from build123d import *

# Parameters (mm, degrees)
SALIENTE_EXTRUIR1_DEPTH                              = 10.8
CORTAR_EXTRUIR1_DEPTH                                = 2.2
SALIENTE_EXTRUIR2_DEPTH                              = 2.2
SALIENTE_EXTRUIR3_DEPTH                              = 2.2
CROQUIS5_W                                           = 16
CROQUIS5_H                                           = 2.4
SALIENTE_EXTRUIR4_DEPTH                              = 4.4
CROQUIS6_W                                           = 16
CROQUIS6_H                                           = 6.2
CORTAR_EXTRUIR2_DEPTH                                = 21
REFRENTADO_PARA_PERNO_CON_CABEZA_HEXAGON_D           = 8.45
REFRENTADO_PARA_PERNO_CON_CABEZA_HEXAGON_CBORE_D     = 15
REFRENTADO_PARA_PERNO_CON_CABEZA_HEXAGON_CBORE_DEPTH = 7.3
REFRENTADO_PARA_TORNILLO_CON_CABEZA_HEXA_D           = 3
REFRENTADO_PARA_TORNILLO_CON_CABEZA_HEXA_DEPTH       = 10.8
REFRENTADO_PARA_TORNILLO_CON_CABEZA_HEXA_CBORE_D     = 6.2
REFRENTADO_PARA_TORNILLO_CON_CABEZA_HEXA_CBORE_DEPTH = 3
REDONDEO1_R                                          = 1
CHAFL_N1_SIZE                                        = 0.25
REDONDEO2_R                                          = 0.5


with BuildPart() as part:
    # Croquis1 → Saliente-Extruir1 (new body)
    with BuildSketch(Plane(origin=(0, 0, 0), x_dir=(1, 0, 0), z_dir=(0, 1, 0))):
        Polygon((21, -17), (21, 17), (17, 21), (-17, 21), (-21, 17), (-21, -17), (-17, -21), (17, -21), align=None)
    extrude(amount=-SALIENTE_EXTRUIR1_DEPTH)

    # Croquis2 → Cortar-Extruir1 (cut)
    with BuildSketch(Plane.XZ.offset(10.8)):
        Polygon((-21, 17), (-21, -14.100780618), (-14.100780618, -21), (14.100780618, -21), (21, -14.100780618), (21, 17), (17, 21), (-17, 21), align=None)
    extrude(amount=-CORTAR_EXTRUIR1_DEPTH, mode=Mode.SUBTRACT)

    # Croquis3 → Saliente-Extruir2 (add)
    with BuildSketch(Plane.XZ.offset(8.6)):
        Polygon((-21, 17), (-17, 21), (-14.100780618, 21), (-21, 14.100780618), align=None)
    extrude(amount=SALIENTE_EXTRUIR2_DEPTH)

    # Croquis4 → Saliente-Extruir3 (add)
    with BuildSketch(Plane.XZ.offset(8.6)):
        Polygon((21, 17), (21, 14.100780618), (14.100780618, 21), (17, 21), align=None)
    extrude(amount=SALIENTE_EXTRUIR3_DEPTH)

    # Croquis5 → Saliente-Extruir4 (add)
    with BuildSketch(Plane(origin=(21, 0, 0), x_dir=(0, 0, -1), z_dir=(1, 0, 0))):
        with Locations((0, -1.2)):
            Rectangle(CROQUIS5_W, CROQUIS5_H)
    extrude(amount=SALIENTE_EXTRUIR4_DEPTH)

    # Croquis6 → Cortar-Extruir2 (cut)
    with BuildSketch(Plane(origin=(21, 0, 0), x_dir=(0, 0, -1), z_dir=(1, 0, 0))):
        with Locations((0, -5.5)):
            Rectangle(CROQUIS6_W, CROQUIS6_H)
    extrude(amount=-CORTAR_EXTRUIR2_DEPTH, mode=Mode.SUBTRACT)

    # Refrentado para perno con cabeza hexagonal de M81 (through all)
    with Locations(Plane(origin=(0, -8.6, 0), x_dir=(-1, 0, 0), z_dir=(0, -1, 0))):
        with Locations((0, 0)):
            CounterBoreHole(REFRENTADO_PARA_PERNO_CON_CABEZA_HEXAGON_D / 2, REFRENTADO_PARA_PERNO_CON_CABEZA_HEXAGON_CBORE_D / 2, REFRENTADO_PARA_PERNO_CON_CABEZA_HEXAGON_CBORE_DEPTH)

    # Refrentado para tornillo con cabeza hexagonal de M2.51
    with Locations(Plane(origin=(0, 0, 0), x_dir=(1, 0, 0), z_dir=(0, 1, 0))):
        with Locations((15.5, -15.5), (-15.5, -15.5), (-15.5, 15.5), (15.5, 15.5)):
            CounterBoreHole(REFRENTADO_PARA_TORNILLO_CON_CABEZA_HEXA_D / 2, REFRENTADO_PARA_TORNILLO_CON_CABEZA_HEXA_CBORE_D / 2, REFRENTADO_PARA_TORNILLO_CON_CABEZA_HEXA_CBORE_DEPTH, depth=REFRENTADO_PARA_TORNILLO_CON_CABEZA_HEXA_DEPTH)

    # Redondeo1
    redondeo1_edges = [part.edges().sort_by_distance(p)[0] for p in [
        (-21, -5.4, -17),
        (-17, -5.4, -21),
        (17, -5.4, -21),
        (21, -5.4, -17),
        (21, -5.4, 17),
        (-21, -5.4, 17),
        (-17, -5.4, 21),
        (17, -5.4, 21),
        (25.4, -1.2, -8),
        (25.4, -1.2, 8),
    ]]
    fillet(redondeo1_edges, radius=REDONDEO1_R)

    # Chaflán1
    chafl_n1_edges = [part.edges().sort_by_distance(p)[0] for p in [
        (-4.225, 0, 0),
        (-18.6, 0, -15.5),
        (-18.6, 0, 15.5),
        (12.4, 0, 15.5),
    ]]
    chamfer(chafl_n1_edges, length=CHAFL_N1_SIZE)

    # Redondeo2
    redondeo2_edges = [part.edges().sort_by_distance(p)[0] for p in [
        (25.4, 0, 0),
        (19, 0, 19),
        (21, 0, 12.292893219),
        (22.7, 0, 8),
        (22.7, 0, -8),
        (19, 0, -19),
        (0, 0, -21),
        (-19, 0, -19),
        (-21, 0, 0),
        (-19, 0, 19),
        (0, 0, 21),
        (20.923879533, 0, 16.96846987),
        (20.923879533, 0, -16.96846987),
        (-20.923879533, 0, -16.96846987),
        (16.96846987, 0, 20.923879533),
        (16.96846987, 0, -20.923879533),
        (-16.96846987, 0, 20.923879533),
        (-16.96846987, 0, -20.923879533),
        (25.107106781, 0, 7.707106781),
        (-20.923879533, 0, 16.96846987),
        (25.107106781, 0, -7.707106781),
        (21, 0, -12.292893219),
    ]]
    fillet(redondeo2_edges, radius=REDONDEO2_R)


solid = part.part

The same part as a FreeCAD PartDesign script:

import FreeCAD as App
import Part
import Sketcher

V = App.Vector
Q = App.Units.Quantity


def edges_at(feature, points):
    """Names of the edges that pass closest to the given points."""
    edges = feature.Shape.Edges
    near = lambda p: min(range(len(edges)), key=lambda i: edges[i].distToShape(Part.Vertex(*p))[0])
    return sorted({f"Edge{near(p) + 1}" for p in points})

doc = App.newDocument("Part")
params = doc.addObject("Spreadsheet::Sheet", "Params")
for row, (alias, value) in enumerate([
    ("sketch1_width", "34 mm"),
    ("pad1_length", "10.8 mm"),
    ("sketch2_width", "34 mm"),
    ("pocket1_length", "2.2 mm"),
    ("pad2_length", "2.2 mm"),
    ("pad3_length", "2.2 mm"),
    ("sketch5_height", "16 mm"),
    ("sketch5_width", "2.4 mm"),
    ("pad4_length", "4.4 mm"),
    ("sketch6_height", "16 mm"),
    ("sketch6_width", "6.2 mm"),
    ("pocket2_length", "21 mm"),
    ("sketch7_diameter", "8.45 mm"),
    ("hole_diameter", "8.45 mm"),
    ("hole_cbore_diameter", "15 mm"),
    ("hole_cbore_depth", "7.3 mm"),
    ("sketch8_diameter", "3 mm"),
    ("hole2_diameter", "3 mm"),
    ("hole2_depth", "10.8 mm"),
    ("hole2_cbore_diameter", "6.2 mm"),
    ("hole2_cbore_depth", "3 mm"),
    ("fillet_radius", "1 mm"),
    ("chamfer_size", "0.25 mm"),
    ("fillet2_radius", "0.5 mm"),
], start=1):
    params.set(f"A{row}", alias)
    params.set(f"B{row}", "=" + value)
    params.setAlias(f"B{row}", alias)

body = doc.addObject("PartDesign::Body", "Body")

# Sketch on XZ plane
sketch1 = body.newObject("Sketcher::SketchObject", "Sketch")
sketch1.AttachmentSupport = (doc.getObject("XZ_Plane"), [""])
sketch1.MapMode = "FlatFace"
sketch1.addGeometry(Part.LineSegment(V(21, 17, 0), V(21, -17, 0)), False)
sketch1.addGeometry(Part.LineSegment(V(21, -17, 0), V(17, -21, 0)), False)
sketch1.addGeometry(Part.LineSegment(V(17, -21, 0), V(-17, -21, 0)), False)
sketch1.addGeometry(Part.LineSegment(V(-17, -21, 0), V(-21, -17, 0)), False)
sketch1.addGeometry(Part.LineSegment(V(-21, -17, 0), V(-21, 17, 0)), False)
sketch1.addGeometry(Part.LineSegment(V(-21, 17, 0), V(-17, 21, 0)), False)
sketch1.addGeometry(Part.LineSegment(V(-17, 21, 0), V(17, 21, 0)), False)
sketch1.addGeometry(Part.LineSegment(V(17, 21, 0), V(21, 17, 0)), False)
sketch1.addConstraint(Sketcher.Constraint("Coincident", 0, 2, 1, 1))
sketch1.addConstraint(Sketcher.Constraint("Coincident", 1, 2, 2, 1))
sketch1.addConstraint(Sketcher.Constraint("Coincident", 2, 2, 3, 1))
sketch1.addConstraint(Sketcher.Constraint("Coincident", 3, 2, 4, 1))
sketch1.addConstraint(Sketcher.Constraint("Coincident", 4, 2, 5, 1))
sketch1.addConstraint(Sketcher.Constraint("Coincident", 5, 2, 6, 1))
sketch1.addConstraint(Sketcher.Constraint("Coincident", 6, 2, 7, 1))
sketch1.addConstraint(Sketcher.Constraint("Coincident", 7, 2, 0, 1))
sketch1.addConstraint(Sketcher.Constraint("Vertical", 0))
sketch1.addConstraint(Sketcher.Constraint("Horizontal", 2))
sketch1.addConstraint(Sketcher.Constraint("Vertical", 4))
sketch1.addConstraint(Sketcher.Constraint("Horizontal", 6))
sketch1.addConstraint(Sketcher.Constraint("Symmetric", 0, 2, 4, 2, -1, 1))
sketch1.addConstraint(Sketcher.Constraint("Symmetric", 1, 2, 5, 2, -1, 1))
sketch1.addConstraint(Sketcher.Constraint("Perpendicular", 1, 3))
sketch1.addConstraint(Sketcher.Constraint("Perpendicular", 5, 7))
sketch1.addConstraint(Sketcher.Constraint("Horizontal", 0, 2, 3, 2))
sketch1.addConstraint(Sketcher.Constraint("Horizontal", 4, 2, 7, 2))
sketch1.addConstraint(Sketcher.Constraint("Vertical", 2, 2, 5, 2))
sketch1.addConstraint(Sketcher.Constraint("Equal", 6, 0))
sketch1.addConstraint(Sketcher.Constraint("DistanceX", 2, 2, 2, 1, Q("34 mm")))
sketch1.addConstraint(Sketcher.Constraint("DistanceX", -1, 1, 0, 2, Q("21 mm")))
sketch1.setExpression("Constraints[20]", "Params.sketch1_width")
pad1 = body.newObject("PartDesign::Pad", "Pad")
pad1.Profile = sketch1
pad1.setExpression("Length", "Params.pad1_length")

# Sketch on XZ plane
sketch2 = body.newObject("Sketcher::SketchObject", "Sketch001")
sketch2.AttachmentSupport = (doc.getObject("XZ_Plane"), [""])
sketch2.MapMode = "FlatFace"
sketch2.AttachmentOffset = App.Placement(V(0, 0, 10.8), App.Rotation())
sketch2.addGeometry(Part.LineSegment(V(-21, 17, 0), V(-21, -14, 0)), False)
sketch2.addGeometry(Part.LineSegment(V(-21, -14, 0), V(-14, -21, 0)), False)
sketch2.addGeometry(Part.LineSegment(V(-14, -21, 0), V(14, -21, 0)), False)
sketch2.addGeometry(Part.LineSegment(V(14, -21, 0), V(21, -14, 0)), False)
sketch2.addGeometry(Part.LineSegment(V(21, -14, 0), V(21, 17, 0)), False)
sketch2.addGeometry(Part.LineSegment(V(21, 17, 0), V(17, 21, 0)), False)
sketch2.addGeometry(Part.LineSegment(V(17, 21, 0), V(-17, 21, 0)), False)
sketch2.addGeometry(Part.LineSegment(V(-17, 21, 0), V(-21, 17, 0)), False)
sketch2.addConstraint(Sketcher.Constraint("Coincident", 0, 2, 1, 1))
sketch2.addConstraint(Sketcher.Constraint("Coincident", 1, 2, 2, 1))
sketch2.addConstraint(Sketcher.Constraint("Coincident", 2, 2, 3, 1))
sketch2.addConstraint(Sketcher.Constraint("Coincident", 3, 2, 4, 1))
sketch2.addConstraint(Sketcher.Constraint("Coincident", 4, 2, 5, 1))
sketch2.addConstraint(Sketcher.Constraint("Coincident", 5, 2, 6, 1))
sketch2.addConstraint(Sketcher.Constraint("Coincident", 6, 2, 7, 1))
sketch2.addConstraint(Sketcher.Constraint("Coincident", 7, 2, 0, 1))
sketch2.addConstraint(Sketcher.Constraint("Vertical", 0))
sketch2.addConstraint(Sketcher.Constraint("Horizontal", 2))
sketch2.addConstraint(Sketcher.Constraint("Vertical", 4))
sketch2.addConstraint(Sketcher.Constraint("Horizontal", 6))
sketch2.addConstraint(Sketcher.Constraint("Symmetric", 0, 2, 3, 2, -2))
sketch2.addConstraint(Sketcher.Constraint("Perpendicular", 1, 3))
sketch2.addConstraint(Sketcher.Constraint("Perpendicular", 3, 5))
sketch2.addConstraint(Sketcher.Constraint("Perpendicular", 5, 7))
sketch2.addConstraint(Sketcher.Constraint("Horizontal", 4, 2, 7, 2))
sketch2.addConstraint(Sketcher.Constraint("Equal", 1, 3))
sketch2.addConstraint(Sketcher.Constraint("DistanceX", 6, 2, 6, 1, Q("34 mm")))
sketch2.addConstraint(Sketcher.Constraint("DistanceX", 0, 2, -1, 1, Q("21 mm")))
sketch2.addConstraint(Sketcher.Constraint("DistanceY", 1, 2, -1, 1, Q("21 mm")))
sketch2.addConstraint(Sketcher.Constraint("DistanceY", -1, 1, 4, 2, Q("17 mm")))
sketch2.addConstraint(Sketcher.Constraint("DistanceX", 2, 1, 2, 2, Q("28.201561 mm")))
sketch2.setExpression("Constraints[18]", "Params.sketch2_width")
pocket1 = body.newObject("PartDesign::Pocket", "Pocket")
pocket1.Profile = sketch2
pocket1.setExpression("Length", "Params.pocket1_length")

# Sketch on XZ plane
sketch3 = body.newObject("Sketcher::SketchObject", "Sketch002")
sketch3.AttachmentSupport = (doc.getObject("XZ_Plane"), [""])
sketch3.MapMode = "FlatFace"
sketch3.AttachmentOffset = App.Placement(V(0, 0, 8.6), App.Rotation())
sketch3.addGeometry(Part.LineSegment(V(-17, 21, 0), V(-21, 17, 0)), False)
sketch3.addGeometry(Part.LineSegment(V(-21, 17, 0), V(-21, 14.1, 0)), False)
sketch3.addGeometry(Part.LineSegment(V(-21, 14.1, 0), V(-14.1, 21, 0)), False)
sketch3.addGeometry(Part.LineSegment(V(-14.1, 21, 0), V(-17, 21, 0)), False)
sketch3.addConstraint(Sketcher.Constraint("Coincident", 0, 2, 1, 1))
sketch3.addConstraint(Sketcher.Constraint("Coincident", 1, 2, 2, 1))
sketch3.addConstraint(Sketcher.Constraint("Coincident", 2, 2, 3, 1))
sketch3.addConstraint(Sketcher.Constraint("Coincident", 3, 2, 0, 1))
sketch3.addConstraint(Sketcher.Constraint("Vertical", 1))
sketch3.addConstraint(Sketcher.Constraint("Horizontal", 3))
sketch3.addConstraint(Sketcher.Constraint("Parallel", 0, 2))
sketch3.addConstraint(Sketcher.Constraint("Equal", 3, 1))
sketch3.addConstraint(Sketcher.Constraint("DistanceX", 0, 2, -1, 1, Q("21 mm")))
sketch3.addConstraint(Sketcher.Constraint("DistanceY", -1, 1, 0, 2, Q("17 mm")))
sketch3.addConstraint(Sketcher.Constraint("DistanceY", -1, 1, 2, 2, Q("21 mm")))
sketch3.addConstraint(Sketcher.Constraint("DistanceX", 3, 2, 3, 1, Q("2.899219 mm")))
pad2 = body.newObject("PartDesign::Pad", "Pad001")
pad2.Profile = sketch3
pad2.setExpression("Length", "Params.pad2_length")

# Sketch on XZ plane
sketch4 = body.newObject("Sketcher::SketchObject", "Sketch003")
sketch4.AttachmentSupport = (doc.getObject("XZ_Plane"), [""])
sketch4.MapMode = "FlatFace"
sketch4.AttachmentOffset = App.Placement(V(0, 0, 8.6), App.Rotation())
sketch4.addGeometry(Part.LineSegment(V(21, 14.1, 0), V(21, 17, 0)), False)
sketch4.addGeometry(Part.LineSegment(V(21, 17, 0), V(17, 21, 0)), False)
sketch4.addGeometry(Part.LineSegment(V(17, 21, 0), V(14.1, 21, 0)), False)
sketch4.addGeometry(Part.LineSegment(V(14.1, 21, 0), V(21, 14.1, 0)), False)
sketch4.addConstraint(Sketcher.Constraint("Coincident", 0, 2, 1, 1))
sketch4.addConstraint(Sketcher.Constraint("Coincident", 1, 2, 2, 1))
sketch4.addConstraint(Sketcher.Constraint("Coincident", 2, 2, 3, 1))
sketch4.addConstraint(Sketcher.Constraint("Coincident", 3, 2, 0, 1))
sketch4.addConstraint(Sketcher.Constraint("Vertical", 0))
sketch4.addConstraint(Sketcher.Constraint("Horizontal", 2))
sketch4.addConstraint(Sketcher.Constraint("Parallel", 1, 3))
sketch4.addConstraint(Sketcher.Constraint("Equal", 2, 0))
sketch4.addConstraint(Sketcher.Constraint("DistanceX", -1, 1, 0, 2, Q("21 mm")))
sketch4.addConstraint(Sketcher.Constraint("DistanceY", -1, 1, 0, 2, Q("17 mm")))
sketch4.addConstraint(Sketcher.Constraint("DistanceX", -1, 1, 1, 2, Q("17 mm")))
sketch4.addConstraint(Sketcher.Constraint("DistanceX", 2, 2, 2, 1, Q("2.899219 mm")))
pad3 = body.newObject("PartDesign::Pad", "Pad002")
pad3.Profile = sketch4
pad3.setExpression("Length", "Params.pad3_length")

# Sketch on YZ plane
sketch5 = body.newObject("Sketcher::SketchObject", "Sketch004")
sketch5.AttachmentSupport = (doc.getObject("YZ_Plane"), [""])
sketch5.MapMode = "FlatFace"
sketch5.AttachmentOffset = App.Placement(V(0, 0, 21), App.Rotation())
sketch5.addGeometry(Part.LineSegment(V(0, 8, 0), V(-2.4, 8, 0)), False)
sketch5.addGeometry(Part.LineSegment(V(-2.4, 8, 0), V(-2.4, -8, 0)), False)
sketch5.addGeometry(Part.LineSegment(V(-2.4, -8, 0), V(0, -8, 0)), False)
sketch5.addGeometry(Part.LineSegment(V(0, -8, 0), V(0, 8, 0)), False)
sketch5.addConstraint(Sketcher.Constraint("Coincident", 0, 2, 1, 1))
sketch5.addConstraint(Sketcher.Constraint("Coincident", 1, 2, 2, 1))
sketch5.addConstraint(Sketcher.Constraint("Coincident", 2, 2, 3, 1))
sketch5.addConstraint(Sketcher.Constraint("Coincident", 3, 2, 0, 1))
sketch5.addConstraint(Sketcher.Constraint("Horizontal", 0))
sketch5.addConstraint(Sketcher.Constraint("Vertical", 1))
sketch5.addConstraint(Sketcher.Constraint("Horizontal", 2))
sketch5.addConstraint(Sketcher.Constraint("Vertical", 3))
sketch5.addConstraint(Sketcher.Constraint("Symmetric", 2, 2, 3, 2, -1, 1))
sketch5.addConstraint(Sketcher.Constraint("DistanceY", 1, 2, 1, 1, Q("16 mm")))
sketch5.addConstraint(Sketcher.Constraint("DistanceX", 0, 2, 0, 1, Q("2.4 mm")))
sketch5.setExpression("Constraints[9]", "Params.sketch5_height")
sketch5.setExpression("Constraints[10]", "Params.sketch5_width")
pad4 = body.newObject("PartDesign::Pad", "Pad003")
pad4.Profile = sketch5
pad4.setExpression("Length", "Params.pad4_length")

# Sketch on YZ plane
sketch6 = body.newObject("Sketcher::SketchObject", "Sketch005")
sketch6.AttachmentSupport = (doc.getObject("YZ_Plane"), [""])
sketch6.MapMode = "FlatFace"
sketch6.AttachmentOffset = App.Placement(V(0, 0, 21), App.Rotation())
sketch6.addGeometry(Part.LineSegment(V(-2, 8, 0), V(-9, 8, 0)), False)
sketch6.addGeometry(Part.LineSegment(V(-9, 8, 0), V(-9, -8, 0)), False)
sketch6.addGeometry(Part.LineSegment(V(-9, -8, 0), V(-2, -8, 0)), False)
sketch6.addGeometry(Part.LineSegment(V(-2, -8, 0), V(-2, 8, 0)), False)
sketch6.addConstraint(Sketcher.Constraint("Coincident", 0, 2, 1, 1))
sketch6.addConstraint(Sketcher.Constraint("Coincident", 1, 2, 2, 1))
sketch6.addConstraint(Sketcher.Constraint("Coincident", 2, 2, 3, 1))
sketch6.addConstraint(Sketcher.Constraint("Coincident", 3, 2, 0, 1))
sketch6.addConstraint(Sketcher.Constraint("Horizontal", 0))
sketch6.addConstraint(Sketcher.Constraint("Vertical", 1))
sketch6.addConstraint(Sketcher.Constraint("Horizontal", 2))
sketch6.addConstraint(Sketcher.Constraint("Vertical", 3))
sketch6.addConstraint(Sketcher.Constraint("DistanceY", 1, 2, 1, 1, Q("16 mm")))
sketch6.addConstraint(Sketcher.Constraint("DistanceX", 0, 2, 0, 1, Q("6.2 mm")))
sketch6.addConstraint(Sketcher.Constraint("DistanceY", -1, 1, 0, 2, Q("8 mm")))
sketch6.addConstraint(Sketcher.Constraint("DistanceX", 0, 2, -1, 1, Q("8.6 mm")))
sketch6.setExpression("Constraints[8]", "Params.sketch6_height")
sketch6.setExpression("Constraints[9]", "Params.sketch6_width")
pocket2 = body.newObject("PartDesign::Pocket", "Pocket001")
pocket2.Profile = sketch6
pocket2.setExpression("Length", "Params.pocket2_length")

# Sketch on XZ plane
sketch7 = body.newObject("Sketcher::SketchObject", "Sketch006")
sketch7.AttachmentSupport = (doc.getObject("XZ_Plane"), [""])
sketch7.MapMode = "FlatFace"
sketch7.AttachmentOffset = App.Placement(V(0, 0, 8.6), App.Rotation())
sketch7.addGeometry(Part.Circle(V(0, 0, 0), V(0, 0, 1), 4.2), False)
sketch7.addConstraint(Sketcher.Constraint("Coincident", 0, 3, -1, 1))
sketch7.addConstraint(Sketcher.Constraint("Diameter", 0, Q("8.45 mm")))
sketch7.setExpression("Constraints[1]", "Params.sketch7_diameter")
doc.recompute()
hole = body.newObject("PartDesign::Hole", "Hole")
hole.Profile = sketch7
hole.ThreadType = "None"
hole.setExpression("Diameter", "Params.hole_diameter")
hole.DepthType = "ThroughAll"
hole.HoleCutType = "Counterbore"
hole.setExpression("HoleCutDiameter", "Params.hole_cbore_diameter")
hole.setExpression("HoleCutDepth", "Params.hole_cbore_depth")

# Sketch on XZ plane
sketch8 = body.newObject("Sketcher::SketchObject", "Sketch007")
sketch8.AttachmentSupport = (doc.getObject("XZ_Plane"), [""])
sketch8.MapMode = "FlatFace"
sketch8.addGeometry(Part.Circle(V(15.5, 15.5, 0), V(0, 0, 1), 1.5), False)
sketch8.addGeometry(Part.Circle(V(-15.5, 15.5, 0), V(0, 0, 1), 1.5), False)
sketch8.addGeometry(Part.Circle(V(-15.5, -15.5, 0), V(0, 0, 1), 1.5), False)
sketch8.addGeometry(Part.Circle(V(15.5, -15.5, 0), V(0, 0, 1), 1.5), False)
sketch8.addConstraint(Sketcher.Constraint("Equal", 0, 1))
sketch8.addConstraint(Sketcher.Constraint("Equal", 1, 2))
sketch8.addConstraint(Sketcher.Constraint("Equal", 2, 3))
sketch8.addConstraint(Sketcher.Constraint("Symmetric", 0, 3, 2, 3, -1, 1))
sketch8.addConstraint(Sketcher.Constraint("Symmetric", 1, 3, 3, 3, -1, 1))
sketch8.addConstraint(Sketcher.Constraint("Symmetric", 0, 3, 1, 3, -2))
sketch8.addConstraint(Sketcher.Constraint("Diameter", 0, Q("3 mm")))
sketch8.addConstraint(Sketcher.Constraint("DistanceX", 1, 3, 0, 3, Q("31 mm")))
sketch8.addConstraint(Sketcher.Constraint("DistanceY", 2, 3, 1, 3, Q("31 mm")))
sketch8.setExpression("Constraints[6]", "Params.sketch8_diameter")
doc.recompute()
hole2 = body.newObject("PartDesign::Hole", "Hole001")
hole2.Profile = sketch8
hole2.ThreadType = "None"
hole2.setExpression("Diameter", "Params.hole2_diameter")
hole2.DepthType = "Dimension"
hole2.setExpression("Depth", "Params.hole2_depth")
hole2.DrillPoint = "Flat"
hole2.HoleCutType = "Counterbore"
hole2.setExpression("HoleCutDiameter", "Params.hole2_cbore_diameter")
hole2.setExpression("HoleCutDepth", "Params.hole2_cbore_depth")
hole2.Reversed = True
doc.recompute()

fillet = body.newObject("PartDesign::Fillet", "Fillet")
fillet.Base = (hole2, edges_at(hole2, [
    (-21, -5.4, -17),
    (-17, -5.4, -21),
    (17, -5.4, -21),
    (21, -5.4, -17),
    (21, -5.4, 17),
    (-21, -5.4, 17),
    (-17, -5.4, 21),
    (17, -5.4, 21),
    (25.4, -1.2, -8),
    (25.4, -1.2, 8),
]))
fillet.setExpression("Radius", "Params.fillet_radius")
doc.recompute()

chamfer = body.newObject("PartDesign::Chamfer", "Chamfer")
chamfer.Base = (fillet, edges_at(fillet, [
    (-4.225, 0, 0),
    (-18.6, 0, -15.5),
    (-18.6, 0, 15.5),
    (12.4, 0, 15.5),
]))
chamfer.setExpression("Size", "Params.chamfer_size")
doc.recompute()

fillet2 = body.newObject("PartDesign::Fillet", "Fillet001")
fillet2.Base = (chamfer, edges_at(chamfer, [
    (25.4, 0, 0),
    (19, 0, 19),
    (21, 0, 12.293),
    (22.7, 0, 8),
    (22.7, 0, -8),
    (19, 0, -19),
    (0, 0, -21),
    (-19, 0, -19),
    (-21, 0, 0),
    (-19, 0, 19),
    (0, 0, 21),
    (20.924, 0, 16.968),
    (20.924, 0, -16.968),
    (-20.924, 0, -16.968),
    (16.968, 0, 20.924),
    (16.968, 0, -20.924),
    (-16.968, 0, 20.924),
    (-16.968, 0, -20.924),
    (25.107, 0, 7.707),
    (-20.924, 0, 16.968),
    (25.107, 0, -7.707),
    (21, 0, -12.293),
]))
fillet2.setExpression("Radius", "Params.fillet2_radius")

doc.recompute()
